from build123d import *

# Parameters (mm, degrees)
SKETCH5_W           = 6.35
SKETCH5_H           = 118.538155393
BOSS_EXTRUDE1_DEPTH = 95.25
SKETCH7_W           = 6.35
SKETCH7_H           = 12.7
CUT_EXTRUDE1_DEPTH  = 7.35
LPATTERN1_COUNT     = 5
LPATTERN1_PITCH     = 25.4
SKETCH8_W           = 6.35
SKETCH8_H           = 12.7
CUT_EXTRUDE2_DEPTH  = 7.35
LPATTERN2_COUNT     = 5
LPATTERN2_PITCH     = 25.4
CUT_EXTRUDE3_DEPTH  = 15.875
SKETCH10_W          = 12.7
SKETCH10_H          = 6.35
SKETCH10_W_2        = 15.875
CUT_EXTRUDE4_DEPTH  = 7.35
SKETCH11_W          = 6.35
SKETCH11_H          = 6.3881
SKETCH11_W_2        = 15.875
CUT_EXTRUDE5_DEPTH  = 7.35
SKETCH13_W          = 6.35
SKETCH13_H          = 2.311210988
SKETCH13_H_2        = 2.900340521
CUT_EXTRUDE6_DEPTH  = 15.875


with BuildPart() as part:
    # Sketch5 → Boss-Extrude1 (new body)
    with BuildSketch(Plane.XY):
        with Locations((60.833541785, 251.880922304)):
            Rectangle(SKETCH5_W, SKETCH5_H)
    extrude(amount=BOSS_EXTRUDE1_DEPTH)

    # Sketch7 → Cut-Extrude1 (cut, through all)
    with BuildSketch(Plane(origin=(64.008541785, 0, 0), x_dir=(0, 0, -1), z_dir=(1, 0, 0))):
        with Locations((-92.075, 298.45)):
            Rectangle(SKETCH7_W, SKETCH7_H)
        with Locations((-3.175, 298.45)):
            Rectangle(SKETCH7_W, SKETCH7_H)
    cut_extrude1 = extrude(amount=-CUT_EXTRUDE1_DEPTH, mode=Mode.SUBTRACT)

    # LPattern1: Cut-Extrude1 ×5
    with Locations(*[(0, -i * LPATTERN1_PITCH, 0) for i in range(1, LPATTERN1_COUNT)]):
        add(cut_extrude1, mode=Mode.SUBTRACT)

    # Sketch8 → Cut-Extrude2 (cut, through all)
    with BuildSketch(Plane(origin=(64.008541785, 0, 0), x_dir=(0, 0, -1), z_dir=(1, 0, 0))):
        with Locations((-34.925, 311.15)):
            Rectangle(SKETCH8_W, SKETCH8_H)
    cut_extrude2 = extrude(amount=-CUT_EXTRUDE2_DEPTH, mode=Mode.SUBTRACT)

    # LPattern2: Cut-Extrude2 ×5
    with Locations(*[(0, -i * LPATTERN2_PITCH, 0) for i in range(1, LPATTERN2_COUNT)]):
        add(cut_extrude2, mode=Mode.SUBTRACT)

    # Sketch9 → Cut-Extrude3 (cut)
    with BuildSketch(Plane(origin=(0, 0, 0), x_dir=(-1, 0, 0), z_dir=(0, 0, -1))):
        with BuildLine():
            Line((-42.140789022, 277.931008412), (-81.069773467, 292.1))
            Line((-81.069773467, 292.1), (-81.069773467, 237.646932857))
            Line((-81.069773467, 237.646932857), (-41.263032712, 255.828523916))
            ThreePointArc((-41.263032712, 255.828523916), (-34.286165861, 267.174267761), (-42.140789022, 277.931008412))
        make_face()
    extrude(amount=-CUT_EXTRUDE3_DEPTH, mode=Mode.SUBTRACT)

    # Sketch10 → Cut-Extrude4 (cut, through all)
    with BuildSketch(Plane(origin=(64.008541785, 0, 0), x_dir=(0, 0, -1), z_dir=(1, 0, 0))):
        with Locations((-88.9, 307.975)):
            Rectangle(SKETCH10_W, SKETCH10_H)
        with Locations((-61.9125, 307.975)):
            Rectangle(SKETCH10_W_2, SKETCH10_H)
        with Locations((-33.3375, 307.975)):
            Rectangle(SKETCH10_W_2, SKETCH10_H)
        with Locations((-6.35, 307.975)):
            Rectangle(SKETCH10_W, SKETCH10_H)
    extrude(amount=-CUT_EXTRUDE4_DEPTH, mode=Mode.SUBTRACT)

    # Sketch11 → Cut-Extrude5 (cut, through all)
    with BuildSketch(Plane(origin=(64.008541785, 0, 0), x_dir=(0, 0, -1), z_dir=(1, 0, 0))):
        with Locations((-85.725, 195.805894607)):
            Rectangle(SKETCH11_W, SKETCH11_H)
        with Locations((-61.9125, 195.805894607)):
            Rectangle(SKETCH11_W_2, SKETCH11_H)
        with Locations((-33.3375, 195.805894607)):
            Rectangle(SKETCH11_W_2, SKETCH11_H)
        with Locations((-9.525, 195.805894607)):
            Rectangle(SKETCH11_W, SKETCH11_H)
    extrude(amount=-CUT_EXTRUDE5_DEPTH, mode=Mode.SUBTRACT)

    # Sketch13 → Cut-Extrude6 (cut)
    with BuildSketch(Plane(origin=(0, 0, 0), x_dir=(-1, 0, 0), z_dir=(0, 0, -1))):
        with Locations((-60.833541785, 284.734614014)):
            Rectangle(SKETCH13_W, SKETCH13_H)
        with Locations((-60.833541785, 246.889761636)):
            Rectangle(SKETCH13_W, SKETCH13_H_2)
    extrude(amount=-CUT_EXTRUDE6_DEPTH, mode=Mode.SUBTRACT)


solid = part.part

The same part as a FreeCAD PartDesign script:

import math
import FreeCAD as App
import Part
import Sketcher
Q = App.Units.Quantity

doc = App.newDocument("Part")
body = doc.addObject("PartDesign::Body", "Body")

# Sketch on XY plane
sketch1 = body.newObject("Sketcher::SketchObject", "Sketch")
sketch1.AttachmentSupport = (doc.getObject("XY_Plane"), [""])
sketch1.MapMode = "FlatFace"
sketch1.addGeometry([
    Part.LineSegment(App.Vector(58, 311, 0), App.Vector(58, 193, 0)),
    Part.LineSegment(App.Vector(58, 193, 0), App.Vector(64, 193, 0)),
    Part.LineSegment(App.Vector(64, 193, 0), App.Vector(64, 311, 0)),
    Part.LineSegment(App.Vector(64, 311, 0), App.Vector(58, 311, 0)),
], False)
sketch1.addConstraint([
    Sketcher.Constraint("Coincident", 0, 2, 1, 1),
    Sketcher.Constraint("Coincident", 1, 2, 2, 1),
    Sketcher.Constraint("Coincident", 2, 2, 3, 1),
    Sketcher.Constraint("Coincident", 3, 2, 0, 1),
    Sketcher.Constraint("Vertical", 0),
    Sketcher.Constraint("Horizontal", 1),
    Sketcher.Constraint("Vertical", 2),
    Sketcher.Constraint("Horizontal", 3),
    Sketcher.Constraint("DistanceX", 1, 1, 1, 2, Q("0.25 in")),
    Sketcher.Constraint("DistanceY", -1, 1, 2, 2, Q("12.25 in")),
    Sketcher.Constraint("DistanceY", 0, 2, 0, 1, 118.538155),
    Sketcher.Constraint("DistanceX", -1, 1, 0, 2, 57.658542),
])
pad1 = body.newObject("PartDesign::Pad", "Pad")
pad1.Profile = sketch1
pad1.Length = Q("3.75 in")

# Sketch on YZ plane
sketch2 = body.newObject("Sketcher::SketchObject", "Sketch001")
sketch2.AttachmentSupport = (doc.getObject("YZ_Plane"), [""])
sketch2.MapMode = "FlatFace"
sketch2.AttachmentOffset = App.Placement(App.Vector(0, 0, 64.008542), App.Rotation())
sketch2.addGeometry([
    Part.LineSegment(App.Vector(305, 95, 0), App.Vector(292, 95, 0)),  # 0
    Part.LineSegment(App.Vector(292, 95, 0), App.Vector(292, 89, 0)),  # 1
    Part.LineSegment(App.Vector(292, 89, 0), App.Vector(305, 89, 0)),  # 2
    Part.LineSegment(App.Vector(305, 89, 0), App.Vector(305, 95, 0)),  # 3
    Part.LineSegment(App.Vector(305, 6, 0), App.Vector(292, 6, 0)),  # 4
    Part.LineSegment(App.Vector(292, 6, 0), App.Vector(292, 0, 0)),  # 5
    Part.LineSegment(App.Vector(292, 0, 0), App.Vector(305, 0, 0)),  # 6
    Part.LineSegment(App.Vector(305, 0, 0), App.Vector(305, 6, 0)),  # 7
], False)
sketch2.addConstraint([
    Sketcher.Constraint("Coincident", 0, 2, 1, 1),
    Sketcher.Constraint("Coincident", 1, 2, 2, 1),
    Sketcher.Constraint("Coincident", 2, 2, 3, 1),
    Sketcher.Constraint("Coincident", 3, 2, 0, 1),
    Sketcher.Constraint("Coincident", 4, 2, 5, 1),
    Sketcher.Constraint("Coincident", 5, 2, 6, 1),
    Sketcher.Constraint("Coincident", 6, 2, 7, 1),
    Sketcher.Constraint("Coincident", 7, 2, 4, 1),
    Sketcher.Constraint("Horizontal", 0),
    Sketcher.Constraint("Vertical", 1),
    Sketcher.Constraint("Horizontal", 2),
    Sketcher.Constraint("Vertical", 3),
    Sketcher.Constraint("Horizontal", 4),
    Sketcher.Constraint("Vertical", 5),
    Sketcher.Constraint("Horizontal", 6),
    Sketcher.Constraint("Vertical", 7),
    Sketcher.Constraint("PointOnObject", 5, 2, -1),
    Sketcher.Constraint("Vertical", 1, 2, 4, 2),
    Sketcher.Constraint("Vertical", 3, 2, 6, 2),
    Sketcher.Constraint("Equal", 3, 5),
    Sketcher.Constraint("DistanceX", 0, 2, 0, 1, Q("0.5 in")),
    Sketcher.Constraint("DistanceX", -1, 1, 2, 2, Q("12 in")),
    Sketcher.Constraint("DistanceY", 1, 2, 1, 1, Q("0.25 in")),
    Sketcher.Constraint("DistanceY", -1, 1, 1, 2, Q("3.5 in")),
])
pocket1 = body.newObject("PartDesign::Pocket", "Pocket")
pocket1.Profile = sketch2
pocket1.Type = "ThroughAll"
doc.recompute()

linearpattern = body.newObject("PartDesign::LinearPattern", "LinearPattern")
linearpattern.Originals = [pocket1]
linearpattern.Direction = (doc.getObject("Y_Axis"), [""])
linearpattern.Mode = "offset"
linearpattern.Offset = Q("1 in")
linearpattern.Occurrences = 5
linearpattern.Reversed = True
body.Tip = linearpattern

# Sketch on YZ plane
sketch3 = body.newObject("Sketcher::SketchObject", "Sketch002")
sketch3.AttachmentSupport = (doc.getObject("YZ_Plane"), [""])
sketch3.MapMode = "FlatFace"
sketch3.AttachmentOffset = App.Placement(App.Vector(0, 0, 64.008542), App.Rotation())
sketch3.addGeometry([
    Part.LineSegment(App.Vector(318, 38, 0), App.Vector(305, 38, 0)),
    Part.LineSegment(App.Vector(305, 38, 0), App.Vector(305, 32, 0)),
    Part.LineSegment(App.Vector(305, 32, 0), App.Vector(318, 32, 0)),
    Part.LineSegment(App.Vector(318, 32, 0), App.Vector(318, 38, 0)),
], False)
sketch3.addConstraint([
    Sketcher.Constraint("Coincident", 0, 2, 1, 1),
    Sketcher.Constraint("Coincident", 1, 2, 2, 1),
    Sketcher.Constraint("Coincident", 2, 2, 3, 1),
    Sketcher.Constraint("Coincident", 3, 2, 0, 1),
    Sketcher.Constraint("Horizontal", 0),
    Sketcher.Constraint("Vertical", 1),
    Sketcher.Constraint("Horizontal", 2),
    Sketcher.Constraint("Vertical", 3),
    Sketcher.Constraint("DistanceX", 0, 2, 0, 1, Q("0.5 in")),
    Sketcher.Constraint("DistanceX", -1, 1, 0, 2, Q("12 in")),
    Sketcher.Constraint("DistanceY", 1, 2, 1, 1, Q("0.25 in")),
    Sketcher.Constraint("DistanceY", -1, 1, 0, 2, Q("1.5 in")),
])
pocket2 = body.newObject("PartDesign::Pocket", "Pocket001")
pocket2.Profile = sketch3
pocket2.Type = "ThroughAll"
doc.recompute()

linearpattern2 = body.newObject("PartDesign::LinearPattern", "LinearPattern001")
linearpattern2.Originals = [pocket2]
linearpattern2.Direction = (doc.getObject("Y_Axis"), [""])
linearpattern2.Mode = "offset"
linearpattern2.Offset = Q("1 in")
linearpattern2.Occurrences = 5
linearpattern2.Reversed = True
body.Tip = linearpattern2

# Sketch on XY plane
sketch4 = body.newObject("Sketcher::SketchObject", "Sketch003")
sketch4.AttachmentSupport = (doc.getObject("XY_Plane"), [""])
sketch4.MapMode = "FlatFace"
sketch4.addGeometry([
    Part.LineSegment(App.Vector(42, 278, 0), App.Vector(81, 292, 0)),
    Part.LineSegment(App.Vector(81, 292, 0), App.Vector(81, 238, 0)),
    Part.LineSegment(App.Vector(81, 238, 0), App.Vector(41, 256, 0)),
    Part.ArcOfCircle(Part.Circle(App.Vector(46, 267, 0), App.Vector(0, 0, 1), 12), math.radians(110), math.radians(245)),
], False)
sketch4.addConstraint([
    Sketcher.Constraint("Coincident", 0, 2, 1, 1),
    Sketcher.Constraint("Coincident", 1, 2, 2, 1),
    Sketcher.Constraint("Tangent", 2, 2, 3, 2),
    Sketcher.Constraint("Tangent", 3, 1, 0, 1),
    Sketcher.Constraint("Vertical", 1),
    Sketcher.Constraint("Angle", 0, Q("20 deg")),
    Sketcher.Constraint("DistanceY", 3, 3, 0, 2, Q("1 in")),
    Sketcher.Constraint("DistanceY", -1, 1, 3, 3, Q("10.5 in")),
    Sketcher.Constraint("Radius", 3, 11.95179),
    Sketcher.Constraint("Distance", 2, 43.762391),
    Sketcher.Constraint("DistanceX", -1, 1, 3, 3, 46.228542),
])
pocket3 = body.newObject("PartDesign::Pocket", "Pocket002")
pocket3.Profile = sketch4
pocket3.Length = Q("0.625 in")
pocket3.Reversed = True

# Sketch on YZ plane
sketch5 = body.newObject("Sketcher::SketchObject", "Sketch004")
sketch5.AttachmentSupport = (doc.getObject("YZ_Plane"), [""])
sketch5.MapMode = "FlatFace"
sketch5.AttachmentOffset = App.Placement(App.Vector(0, 0, 64.008542), App.Rotation())
sketch5.addGeometry([
    Part.LineSegment(App.Vector(311, 95, 0), App.Vector(305, 95, 0)),  # 0
    Part.LineSegment(App.Vector(305, 95, 0), App.Vector(305, 83, 0)),  # 1
    Part.LineSegment(App.Vector(305, 83, 0), App.Vector(311, 83, 0)),  # 2
    Part.LineSegment(App.Vector(311, 83, 0), App.Vector(311, 95, 0)),  # 3
    Part.LineSegment(App.Vector(311, 70, 0), App.Vector(305, 70, 0)),  # 4
    Part.LineSegment(App.Vector(305, 70, 0), App.Vector(305, 54, 0)),  # 5
    Part.LineSegment(App.Vector(305, 54, 0), App.Vector(311, 54, 0)),  # 6
    Part.LineSegment(App.Vector(311, 54, 0), App.Vector(311, 70, 0)),  # 7
    Part.LineSegment(App.Vector(311, 41, 0), App.Vector(305, 41, 0)),  # 8
    Part.LineSegment(App.Vector(305, 41, 0), App.Vector(305, 25, 0)),  # 9
    Part.LineSegment(App.Vector(305, 25, 0), App.Vector(311, 25, 0)),  # 10
    Part.LineSegment(App.Vector(311, 25, 0), App.Vector(311, 41, 0)),  # 11
    Part.LineSegment(App.Vector(311, 13, 0), App.Vector(305, 13, 0)),  # 12
    Part.LineSegment(App.Vector(305, 13, 0), App.Vector(305, 0, 0)),  # 13
    Part.LineSegment(App.Vector(305, 0, 0), App.Vector(311, 0, 0)),  # 14
    Part.LineSegment(App.Vector(311, 0, 0), App.Vector(311, 13, 0)),  # 15
], False)
sketch5.addConstraint([
    Sketcher.Constraint("Coincident", 0, 2, 1, 1),
    Sketcher.Constraint("Coincident", 1, 2, 2, 1),
    Sketcher.Constraint("Coincident", 2, 2, 3, 1),
    Sketcher.Constraint("Coincident", 3, 2, 0, 1),
    Sketcher.Constraint("Coincident", 4, 2, 5, 1),
    Sketcher.Constraint("Coincident", 5, 2, 6, 1),
    Sketcher.Constraint("Coincident", 6, 2, 7, 1),
    Sketcher.Constraint("Coincident", 7, 2, 4, 1),
    Sketcher.Constraint("Coincident", 8, 2, 9, 1),
    Sketcher.Constraint("Coincident", 9, 2, 10, 1),
    Sketcher.Constraint("Coincident", 10, 2, 11, 1),
    Sketcher.Constraint("Coincident", 11, 2, 8, 1),
    Sketcher.Constraint("Coincident", 12, 2, 13, 1),
    Sketcher.Constraint("Coincident", 13, 2, 14, 1),
    Sketcher.Constraint("Coincident", 14, 2, 15, 1),
    Sketcher.Constraint("Coincident", 15, 2, 12, 1),
    Sketcher.Constraint("Horizontal", 0),
    Sketcher.Constraint("Vertical", 1),
    Sketcher.Constraint("Horizontal", 2),
    Sketcher.Constraint("Vertical", 3),
    Sketcher.Constraint("Horizontal", 4),
    Sketcher.Constraint("Vertical", 5),
    Sketcher.Constraint("Horizontal", 6),
    Sketcher.Constraint("Vertical", 7),
    Sketcher.Constraint("Horizontal", 8),
    Sketcher.Constraint("Vertical", 9),
    Sketcher.Constraint("Horizontal", 10),
    Sketcher.Constraint("Vertical", 11),
    Sketcher.Constraint("Horizontal", 12),
    Sketcher.Constraint("Vertical", 13),
    Sketcher.Constraint("Horizontal", 14),
    Sketcher.Constraint("Vertical", 15),
    Sketcher.Constraint("PointOnObject", 13, 2, -1),
    Sketcher.Constraint("Vertical", 1, 2, 4, 2),
    Sketcher.Constraint("Vertical", 3, 2, 6, 2),
    Sketcher.Constraint("Vertical", 5, 2, 8, 2),
    Sketcher.Constraint("Vertical", 7, 2, 10, 2),
    Sketcher.Constraint("Vertical", 9, 2, 12, 2),
    Sketcher.Constraint("Vertical", 11, 2, 14, 2),
    Sketcher.Constraint("Equal", 7, 9),
    Sketcher.Constraint("Equal", 3, 13),
    Sketcher.Constraint("DistanceY", 1, 2, 1, 1, Q("0.5 in")),
    Sketcher.Constraint("DistanceX", -1, 1, 0, 2, Q("12 in")),
    Sketcher.Constraint("DistanceY", -1, 1, 9, 2, Q("1 in")),
    Sketcher.Constraint("DistanceY", 4, 2, 0, 2, Q("1 in")),
    Sketcher.Constraint("DistanceX", 0, 2, 0, 1, Q("0.25 in")),
    Sketcher.Constraint("DistanceY", 8, 2, 5, 2, Q("0.5 in")),
    Sketcher.Constraint("DistanceY", 5, 2, 5, 1, Q("0.625 in")),
])
pocket4 = body.newObject("PartDesign::Pocket", "Pocket003")
pocket4.Profile = sketch5
pocket4.Type = "ThroughAll"

# Sketch on YZ plane
sketch6 = body.newObject("Sketcher::SketchObject", "Sketch005")
sketch6.AttachmentSupport = (doc.getObject("YZ_Plane"), [""])
sketch6.MapMode = "FlatFace"
sketch6.AttachmentOffset = App.Placement(App.Vector(0, 0, 64.008542), App.Rotation())
sketch6.addGeometry([
    Part.LineSegment(App.Vector(199, 89, 0), App.Vector(193, 89, 0)),  # 0
    Part.LineSegment(App.Vector(193, 89, 0), App.Vector(193, 83, 0)),  # 1
    Part.LineSegment(App.Vector(193, 83, 0), App.Vector(199, 83, 0)),  # 2
    Part.LineSegment(App.Vector(199, 83, 0), App.Vector(199, 89, 0)),  # 3
    Part.LineSegment(App.Vector(199, 70, 0), App.Vector(193, 70, 0)),  # 4
    Part.LineSegment(App.Vector(193, 70, 0), App.Vector(193, 54, 0)),  # 5
    Part.LineSegment(App.Vector(193, 54, 0), App.Vector(199, 54, 0)),  # 6
    Part.LineSegment(App.Vector(199, 54, 0), App.Vector(199, 70, 0)),  # 7
    Part.LineSegment(App.Vector(199, 41, 0), App.Vector(193, 41, 0)),  # 8
    Part.LineSegment(App.Vector(193, 41, 0), App.Vector(193, 25, 0)),  # 9
    Part.LineSegment(App.Vector(193, 25, 0), App.Vector(199, 25, 0)),  # 10
    Part.LineSegment(App.Vector(199, 25, 0), App.Vector(199, 41, 0)),  # 11
    Part.LineSegment(App.Vector(199, 13, 0), App.Vector(193, 13, 0)),  # 12
    Part.LineSegment(App.Vector(193, 13, 0), App.Vector(193, 6, 0)),  # 13
    Part.LineSegment(App.Vector(193, 6, 0), App.Vector(199, 6, 0)),  # 14
    Part.LineSegment(App.Vector(199, 6, 0), App.Vector(199, 13, 0)),  # 15
], False)
sketch6.addConstraint([
    Sketcher.Constraint("Coincident", 0, 2, 1, 1),
    Sketcher.Constraint("Coincident", 1, 2, 2, 1),
    Sketcher.Constraint("Coincident", 2, 2, 3, 1),
    Sketcher.Constraint("Coincident", 3, 2, 0, 1),
    Sketcher.Constraint("Coincident", 4, 2, 5, 1),
    Sketcher.Constraint("Coincident", 5, 2, 6, 1),
    Sketcher.Constraint("Coincident", 6, 2, 7, 1),
    Sketcher.Constraint("Coincident", 7, 2, 4, 1),
    Sketcher.Constraint("Coincident", 8, 2, 9, 1),
    Sketcher.Constraint("Coincident", 9, 2, 10, 1),
    Sketcher.Constraint("Coincident", 10, 2, 11, 1),
    Sketcher.Constraint("Coincident", 11, 2, 8, 1),
    Sketcher.Constraint("Coincident", 12, 2, 13, 1),
    Sketcher.Constraint("Coincident", 13, 2, 14, 1),
    Sketcher.Constraint("Coincident", 14, 2, 15, 1),
    Sketcher.Constraint("Coincident", 15, 2, 12, 1),
    Sketcher.Constraint("Horizontal", 0),
    Sketcher.Constraint("Vertical", 1),
    Sketcher.Constraint("Horizontal", 2),
    Sketcher.Constraint("Vertical", 3),
    Sketcher.Constraint("Horizontal", 4),
    Sketcher.Constraint("Vertical", 5),
    Sketcher.Constraint("Horizontal", 6),
    Sketcher.Constraint("Vertical", 7),
    Sketcher.Constraint("Horizontal", 8),
    Sketcher.Constraint("Vertical", 9),
    Sketcher.Constraint("Horizontal", 10),
    Sketcher.Constraint("Vertical", 11),
    Sketcher.Constraint("Horizontal", 12),
    Sketcher.Constraint("Vertical", 13),
    Sketcher.Constraint("Horizontal", 14),
    Sketcher.Constraint("Vertical", 15),
    Sketcher.Constraint("Vertical", 1, 2, 4, 2),
    Sketcher.Constraint("Vertical", 3, 2, 6, 2),
    Sketcher.Constraint("Vertical", 5, 2, 8, 2),
    Sketcher.Constraint("Vertical", 7, 2, 10, 2),
    Sketcher.Constraint("Vertical", 9, 2, 12, 2),
    Sketcher.Constraint("Vertical", 11, 2, 14, 2),
    Sketcher.Constraint("Equal", 7, 9),
    Sketcher.Constraint("Equal", 3, 13),
    Sketcher.Constraint("DistanceY", -1, 1, 9, 2, Q("1 in")),
    Sketcher.Constraint("DistanceY", 1, 2, 1, 1, Q("0.25 in")),
    Sketcher.Constraint("DistanceY", -1, 1, 0, 2, Q("3.5 in")),
    Sketcher.Constraint("DistanceY", -1, 1, 12, 2, Q("0.5 in")),
    Sketcher.Constraint("DistanceY", 4, 2, 1, 2, Q("0.5 in")),
    Sketcher.Constraint("DistanceY", 8, 2, 5, 2, Q("0.5 in")),
    Sketcher.Constraint("DistanceX", 0, 2, 0, 1, Q("0.2515 in")),
    Sketcher.Constraint("DistanceX", -1, 1, 0, 2, 192.611845),
])
pocket5 = body.newObject("PartDesign::Pocket", "Pocket004")
pocket5.Profile = sketch6
pocket5.Type = "ThroughAll"

# Sketch on XY plane
sketch7 = body.newObject("Sketcher::SketchObject", "Sketch006")
sketch7.AttachmentSupport = (doc.getObject("XY_Plane"), [""])
sketch7.MapMode = "FlatFace"
sketch7.addGeometry([
    Part.LineSegment(App.Vector(64, 285.9, 0), App.Vector(64, 283.6, 0)),  # 0
    Part.LineSegment(App.Vector(64, 283.6, 0), App.Vector(57.7, 283.6, 0)),  # 1
    Part.LineSegment(App.Vector(57.7, 283.6, 0), App.Vector(57.7, 285.9, 0)),  # 2
    Part.LineSegment(App.Vector(57.7, 285.9, 0), App.Vector(64, 285.9, 0)),  # 3
    Part.LineSegment(App.Vector(64, 248.3, 0), App.Vector(64, 245.4, 0)),  # 4
    Part.LineSegment(App.Vector(64, 245.4, 0), App.Vector(57.7, 245.4, 0)),  # 5
    Part.LineSegment(App.Vector(57.7, 245.4, 0), App.Vector(57.7, 248.3, 0)),  # 6
    Part.LineSegment(App.Vector(57.7, 248.3, 0), App.Vector(64, 248.3, 0)),  # 7
], False)
sketch7.addConstraint([
    Sketcher.Constraint("Coincident", 0, 2, 1, 1),
    Sketcher.Constraint("Coincident", 1, 2, 2, 1),
    Sketcher.Constraint("Coincident", 2, 2, 3, 1),
    Sketcher.Constraint("Coincident", 3, 2, 0, 1),
    Sketcher.Constraint("Coincident", 4, 2, 5, 1),
    Sketcher.Constraint("Coincident", 5, 2, 6, 1),
    Sketcher.Constraint("Coincident", 6, 2, 7, 1),
    Sketcher.Constraint("Coincident", 7, 2, 4, 1),
    Sketcher.Constraint("Vertical", 0),
    Sketcher.Constraint("Horizontal", 1),
    Sketcher.Constraint("Vertical", 2),
    Sketcher.Constraint("Horizontal", 3),
    Sketcher.Constraint("Vertical", 4),
    Sketcher.Constraint("Horizontal", 5),
    Sketcher.Constraint("Vertical", 6),
    Sketcher.Constraint("Horizontal", 7),
    Sketcher.Constraint("Vertical", 3, 2, 4, 2),
    Sketcher.Constraint("Vertical", 2, 2, 5, 2),
    Sketcher.Constraint("DistanceX", 1, 2, 1, 1, Q("0.25 in")),
    Sketcher.Constraint("DistanceY", 0, 2, 0, 1, 2.311211),
    Sketcher.Constraint("DistanceY", 4, 2, 4, 1, 2.900341),
    Sketcher.Constraint("DistanceX", -1, 1, 0, 2, 64.008542),
    Sketcher.Constraint("DistanceY", -1, 1, 0, 2, 283.579009),
    Sketcher.Constraint("DistanceY", -1, 1, 4, 2, 245.439591),
])
pocket6 = body.newObject("PartDesign::Pocket", "Pocket005")
pocket6.Profile = sketch7
pocket6.Length = Q("0.625 in")
pocket6.Reversed = True

doc.recompute()
